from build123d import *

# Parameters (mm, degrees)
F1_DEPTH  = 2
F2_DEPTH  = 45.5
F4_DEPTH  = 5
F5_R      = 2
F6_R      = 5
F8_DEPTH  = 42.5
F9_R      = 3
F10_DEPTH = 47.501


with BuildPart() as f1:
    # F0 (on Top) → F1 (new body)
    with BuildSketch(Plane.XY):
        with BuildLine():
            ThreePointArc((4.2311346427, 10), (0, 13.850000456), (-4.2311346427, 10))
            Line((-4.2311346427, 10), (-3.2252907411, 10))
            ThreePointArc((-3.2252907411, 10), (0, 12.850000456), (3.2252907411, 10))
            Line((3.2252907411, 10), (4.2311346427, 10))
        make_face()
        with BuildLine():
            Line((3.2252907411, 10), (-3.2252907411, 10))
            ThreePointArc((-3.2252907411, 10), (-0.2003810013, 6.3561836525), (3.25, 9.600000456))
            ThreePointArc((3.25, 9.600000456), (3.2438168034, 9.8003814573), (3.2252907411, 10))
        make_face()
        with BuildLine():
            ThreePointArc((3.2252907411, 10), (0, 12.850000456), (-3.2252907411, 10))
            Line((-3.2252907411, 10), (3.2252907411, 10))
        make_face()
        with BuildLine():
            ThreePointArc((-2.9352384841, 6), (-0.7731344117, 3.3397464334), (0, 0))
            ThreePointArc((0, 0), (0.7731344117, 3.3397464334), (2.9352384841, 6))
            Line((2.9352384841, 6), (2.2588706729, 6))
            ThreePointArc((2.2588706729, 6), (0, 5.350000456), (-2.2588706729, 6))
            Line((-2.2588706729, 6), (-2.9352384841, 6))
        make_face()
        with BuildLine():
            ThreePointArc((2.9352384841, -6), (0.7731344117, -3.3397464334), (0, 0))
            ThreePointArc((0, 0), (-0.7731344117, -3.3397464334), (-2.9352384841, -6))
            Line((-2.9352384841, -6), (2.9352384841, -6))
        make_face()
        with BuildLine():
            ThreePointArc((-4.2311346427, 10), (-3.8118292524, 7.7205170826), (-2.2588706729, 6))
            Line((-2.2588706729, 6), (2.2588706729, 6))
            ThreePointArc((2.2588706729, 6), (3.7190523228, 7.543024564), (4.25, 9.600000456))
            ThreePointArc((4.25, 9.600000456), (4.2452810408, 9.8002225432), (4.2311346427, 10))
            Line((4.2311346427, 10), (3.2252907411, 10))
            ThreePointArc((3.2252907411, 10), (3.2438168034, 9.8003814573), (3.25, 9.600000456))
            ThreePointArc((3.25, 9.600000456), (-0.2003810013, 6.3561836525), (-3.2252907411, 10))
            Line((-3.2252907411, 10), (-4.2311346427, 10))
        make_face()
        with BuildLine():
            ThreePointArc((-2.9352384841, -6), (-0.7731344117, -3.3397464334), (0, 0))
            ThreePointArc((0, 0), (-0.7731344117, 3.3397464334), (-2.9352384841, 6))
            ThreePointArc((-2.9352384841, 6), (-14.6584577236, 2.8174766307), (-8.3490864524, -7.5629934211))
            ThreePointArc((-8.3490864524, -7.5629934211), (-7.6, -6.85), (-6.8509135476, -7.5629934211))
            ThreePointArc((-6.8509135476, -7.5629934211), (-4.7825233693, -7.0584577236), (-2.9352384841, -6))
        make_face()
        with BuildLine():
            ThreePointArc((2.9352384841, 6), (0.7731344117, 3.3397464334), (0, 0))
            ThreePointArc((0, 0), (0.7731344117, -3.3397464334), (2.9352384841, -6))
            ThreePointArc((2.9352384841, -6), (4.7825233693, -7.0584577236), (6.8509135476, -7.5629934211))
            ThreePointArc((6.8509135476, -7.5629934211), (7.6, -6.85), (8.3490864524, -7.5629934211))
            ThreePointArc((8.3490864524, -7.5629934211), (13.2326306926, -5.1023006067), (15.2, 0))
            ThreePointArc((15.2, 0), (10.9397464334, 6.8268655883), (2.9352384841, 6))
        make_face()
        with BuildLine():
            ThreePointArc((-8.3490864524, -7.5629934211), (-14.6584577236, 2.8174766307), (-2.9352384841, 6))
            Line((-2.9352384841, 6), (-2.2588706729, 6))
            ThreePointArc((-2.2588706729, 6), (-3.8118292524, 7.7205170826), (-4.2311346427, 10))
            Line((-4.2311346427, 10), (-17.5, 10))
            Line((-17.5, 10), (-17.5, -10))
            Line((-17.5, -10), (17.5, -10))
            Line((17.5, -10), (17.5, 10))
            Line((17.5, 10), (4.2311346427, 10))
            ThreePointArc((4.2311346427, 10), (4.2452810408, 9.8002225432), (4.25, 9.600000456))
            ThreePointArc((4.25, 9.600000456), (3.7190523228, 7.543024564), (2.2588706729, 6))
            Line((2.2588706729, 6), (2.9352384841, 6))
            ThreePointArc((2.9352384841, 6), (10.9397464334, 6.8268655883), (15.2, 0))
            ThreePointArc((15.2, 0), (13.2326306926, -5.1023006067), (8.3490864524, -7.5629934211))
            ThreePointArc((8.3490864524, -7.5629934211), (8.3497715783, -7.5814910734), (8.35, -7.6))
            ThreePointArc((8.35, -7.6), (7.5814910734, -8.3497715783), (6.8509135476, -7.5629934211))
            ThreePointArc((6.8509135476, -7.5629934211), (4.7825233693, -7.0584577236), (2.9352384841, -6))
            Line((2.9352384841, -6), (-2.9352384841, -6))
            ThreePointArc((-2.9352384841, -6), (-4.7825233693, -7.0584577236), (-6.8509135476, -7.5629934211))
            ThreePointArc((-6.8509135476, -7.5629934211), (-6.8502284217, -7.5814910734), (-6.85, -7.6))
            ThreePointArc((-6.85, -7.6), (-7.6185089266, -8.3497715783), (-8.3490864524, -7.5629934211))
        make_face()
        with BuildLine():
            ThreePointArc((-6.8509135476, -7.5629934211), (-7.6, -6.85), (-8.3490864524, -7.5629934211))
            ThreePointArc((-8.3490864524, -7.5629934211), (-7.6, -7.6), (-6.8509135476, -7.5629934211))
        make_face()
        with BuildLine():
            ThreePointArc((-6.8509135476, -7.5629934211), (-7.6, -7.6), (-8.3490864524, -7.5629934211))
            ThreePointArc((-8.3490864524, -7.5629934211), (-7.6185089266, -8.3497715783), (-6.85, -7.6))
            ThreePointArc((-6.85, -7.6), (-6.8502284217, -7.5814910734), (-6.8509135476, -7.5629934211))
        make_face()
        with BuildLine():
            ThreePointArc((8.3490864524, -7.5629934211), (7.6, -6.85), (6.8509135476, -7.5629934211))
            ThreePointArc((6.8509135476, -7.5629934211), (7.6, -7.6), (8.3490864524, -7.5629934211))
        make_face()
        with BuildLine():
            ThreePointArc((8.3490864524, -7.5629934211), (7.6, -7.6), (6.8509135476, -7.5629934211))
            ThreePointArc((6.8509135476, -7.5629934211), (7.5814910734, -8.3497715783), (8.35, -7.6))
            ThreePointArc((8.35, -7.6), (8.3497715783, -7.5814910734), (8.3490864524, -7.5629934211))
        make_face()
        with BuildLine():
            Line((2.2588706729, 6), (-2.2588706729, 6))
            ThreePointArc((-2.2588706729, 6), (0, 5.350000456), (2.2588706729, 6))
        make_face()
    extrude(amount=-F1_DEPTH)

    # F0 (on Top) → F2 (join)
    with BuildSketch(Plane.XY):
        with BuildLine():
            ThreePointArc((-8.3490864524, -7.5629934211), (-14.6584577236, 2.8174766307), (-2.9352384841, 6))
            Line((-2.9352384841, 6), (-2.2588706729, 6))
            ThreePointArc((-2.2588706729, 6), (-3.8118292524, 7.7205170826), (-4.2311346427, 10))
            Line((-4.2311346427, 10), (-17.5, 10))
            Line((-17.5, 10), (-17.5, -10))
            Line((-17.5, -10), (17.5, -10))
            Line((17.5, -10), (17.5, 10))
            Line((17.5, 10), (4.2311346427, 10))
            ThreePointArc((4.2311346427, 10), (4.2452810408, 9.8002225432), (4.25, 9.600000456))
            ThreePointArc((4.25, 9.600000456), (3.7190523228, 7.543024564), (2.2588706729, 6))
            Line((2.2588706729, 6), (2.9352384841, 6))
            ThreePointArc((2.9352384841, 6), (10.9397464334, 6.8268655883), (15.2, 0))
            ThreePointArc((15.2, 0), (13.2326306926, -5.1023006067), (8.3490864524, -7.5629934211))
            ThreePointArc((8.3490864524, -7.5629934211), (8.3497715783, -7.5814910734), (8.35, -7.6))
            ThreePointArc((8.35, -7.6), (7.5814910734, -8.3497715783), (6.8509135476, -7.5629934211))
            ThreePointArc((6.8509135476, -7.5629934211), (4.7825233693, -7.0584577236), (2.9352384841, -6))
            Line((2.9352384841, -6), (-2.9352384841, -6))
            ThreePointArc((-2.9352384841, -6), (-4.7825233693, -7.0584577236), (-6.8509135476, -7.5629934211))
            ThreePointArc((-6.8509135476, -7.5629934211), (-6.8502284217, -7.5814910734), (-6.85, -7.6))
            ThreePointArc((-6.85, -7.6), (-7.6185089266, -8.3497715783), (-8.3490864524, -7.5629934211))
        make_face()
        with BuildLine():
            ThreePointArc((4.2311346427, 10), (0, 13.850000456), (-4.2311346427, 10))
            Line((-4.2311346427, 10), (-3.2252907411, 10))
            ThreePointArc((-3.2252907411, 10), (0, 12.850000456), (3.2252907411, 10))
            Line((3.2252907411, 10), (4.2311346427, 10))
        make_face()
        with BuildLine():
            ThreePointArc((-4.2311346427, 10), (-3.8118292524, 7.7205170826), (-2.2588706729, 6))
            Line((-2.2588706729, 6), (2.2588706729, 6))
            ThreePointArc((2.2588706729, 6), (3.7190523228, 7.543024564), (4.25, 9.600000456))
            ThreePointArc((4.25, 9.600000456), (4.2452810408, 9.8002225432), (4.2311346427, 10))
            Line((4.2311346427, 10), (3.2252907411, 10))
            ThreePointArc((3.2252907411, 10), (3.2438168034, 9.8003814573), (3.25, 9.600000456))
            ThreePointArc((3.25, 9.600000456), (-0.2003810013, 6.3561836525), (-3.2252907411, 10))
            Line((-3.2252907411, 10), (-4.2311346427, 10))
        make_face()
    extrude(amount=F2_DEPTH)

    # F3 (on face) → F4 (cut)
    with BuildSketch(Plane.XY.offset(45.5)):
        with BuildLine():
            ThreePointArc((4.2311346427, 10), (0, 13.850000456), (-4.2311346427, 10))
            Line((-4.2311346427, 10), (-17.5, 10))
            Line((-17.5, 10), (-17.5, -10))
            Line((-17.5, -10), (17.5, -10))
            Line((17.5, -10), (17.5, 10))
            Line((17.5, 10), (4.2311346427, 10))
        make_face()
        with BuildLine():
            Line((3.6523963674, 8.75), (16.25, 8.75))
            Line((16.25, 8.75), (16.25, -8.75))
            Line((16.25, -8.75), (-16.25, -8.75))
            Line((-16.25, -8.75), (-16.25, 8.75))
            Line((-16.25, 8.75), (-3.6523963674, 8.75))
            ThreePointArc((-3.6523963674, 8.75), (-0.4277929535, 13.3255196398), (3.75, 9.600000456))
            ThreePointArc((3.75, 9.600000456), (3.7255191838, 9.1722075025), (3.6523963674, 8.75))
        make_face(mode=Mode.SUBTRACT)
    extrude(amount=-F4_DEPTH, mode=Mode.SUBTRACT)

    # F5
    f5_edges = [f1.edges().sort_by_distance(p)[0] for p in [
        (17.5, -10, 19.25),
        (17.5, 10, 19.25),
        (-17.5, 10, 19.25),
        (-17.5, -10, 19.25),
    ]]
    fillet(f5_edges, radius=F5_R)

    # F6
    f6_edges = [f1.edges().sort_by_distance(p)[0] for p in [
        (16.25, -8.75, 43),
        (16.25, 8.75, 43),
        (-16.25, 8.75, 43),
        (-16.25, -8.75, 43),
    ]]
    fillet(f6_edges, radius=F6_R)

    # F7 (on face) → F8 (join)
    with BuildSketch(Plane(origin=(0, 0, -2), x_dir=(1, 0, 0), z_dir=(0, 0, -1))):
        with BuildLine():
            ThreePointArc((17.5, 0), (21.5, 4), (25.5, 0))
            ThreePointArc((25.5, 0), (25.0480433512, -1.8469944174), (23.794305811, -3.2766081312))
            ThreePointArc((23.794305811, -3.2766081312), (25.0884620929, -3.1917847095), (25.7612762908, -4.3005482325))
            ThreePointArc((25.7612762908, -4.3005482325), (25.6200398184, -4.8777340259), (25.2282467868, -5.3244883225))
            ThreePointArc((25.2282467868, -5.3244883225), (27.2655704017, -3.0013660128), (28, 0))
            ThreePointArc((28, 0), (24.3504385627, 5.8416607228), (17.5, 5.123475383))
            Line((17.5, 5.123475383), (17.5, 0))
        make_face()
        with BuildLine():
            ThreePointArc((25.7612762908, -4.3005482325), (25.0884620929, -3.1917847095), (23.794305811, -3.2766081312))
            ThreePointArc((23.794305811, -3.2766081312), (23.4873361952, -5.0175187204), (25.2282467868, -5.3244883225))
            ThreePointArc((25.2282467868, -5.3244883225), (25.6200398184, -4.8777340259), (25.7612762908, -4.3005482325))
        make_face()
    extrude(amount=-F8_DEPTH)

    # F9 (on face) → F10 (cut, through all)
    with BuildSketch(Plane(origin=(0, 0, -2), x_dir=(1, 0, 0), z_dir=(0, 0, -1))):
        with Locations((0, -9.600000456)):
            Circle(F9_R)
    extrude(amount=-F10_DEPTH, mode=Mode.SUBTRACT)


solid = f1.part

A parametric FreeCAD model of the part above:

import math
import FreeCAD as App
import Part
import Sketcher
from FreeCAD import Vector


def edges_at(feature, points):
    """Names of the edges that pass closest to the given points."""
    edges = feature.Shape.Edges
    near = lambda p: min(range(len(edges)), key=lambda i: edges[i].distToShape(Part.Vertex(*p))[0])
    return sorted({f"Edge{near(p) + 1}" for p in points})

doc = App.newDocument("Part")
body = doc.addObject("PartDesign::Body", "Body")

sketch1 = body.newObject("Sketcher::SketchObject", "Sketch")
sketch1.AttachmentSupport = (doc.getObject("XY_Plane"), [""])
sketch1.MapMode = "FlatFace"
sketch1.addGeometry([
    Part.ArcOfCircle(Part.Circle(Vector(0, 9.6, 0), Vector(0, 0, 1), 4.2), math.radians(5), math.radians(175)),
    Part.LineSegment(Vector(-4.2, 10, 0), Vector(-17.5, 10, 0)),
    Part.LineSegment(Vector(-17.5, 10, 0), Vector(-17.5, -10, 0)),
    Part.LineSegment(Vector(-17.5, -10, 0), Vector(17.5, -10, 0)),
    Part.LineSegment(Vector(17.5, -10, 0), Vector(17.5, 10, 0)),
    Part.LineSegment(Vector(17.5, 10, 0), Vector(4.2, 10, 0)),
], False)
sketch1.addConstraint([
    Sketcher.Constraint("Coincident", 0, 2, 1, 1),
    Sketcher.Constraint("Coincident", 1, 2, 2, 1),
    Sketcher.Constraint("Coincident", 2, 2, 3, 1),
    Sketcher.Constraint("Coincident", 3, 2, 4, 1),
    Sketcher.Constraint("Coincident", 4, 2, 5, 1),
    Sketcher.Constraint("Coincident", 5, 2, 0, 1),
    Sketcher.Constraint("Horizontal", 1),
    Sketcher.Constraint("Vertical", 2),
    Sketcher.Constraint("Horizontal", 3),
    Sketcher.Constraint("Vertical", 4),
    Sketcher.Constraint("Horizontal", 5),
    Sketcher.Constraint("Symmetric", 1, 2, 3, 2, -1, 1),
    Sketcher.Constraint("Symmetric", 0, 2, 5, 2, -2),
    Sketcher.Constraint("DistanceX", 3, 1, 3, 2, 35.0),
    Sketcher.Constraint("DistanceY", 2, 2, 2, 1, 20.0),
    Sketcher.Constraint("Radius", 0, 4.25),
    Sketcher.Constraint("DistanceY", -1, 1, 0, 3, 9.6),
])
pad1 = body.newObject("PartDesign::Pad", "Pad")
pad1.Profile = sketch1
pad1.Length = 2
pad1.Reversed = True

sketch2 = body.newObject("Sketcher::SketchObject", "Sketch001")
sketch2.AttachmentSupport = (doc.getObject("XY_Plane"), [""])
sketch2.MapMode = "FlatFace"
sketch2.addGeometry([
    Part.LineSegment(Vector(-4.231, 10, 0), Vector(-17.5, 10, 0)),
    Part.LineSegment(Vector(-17.5, 10, 0), Vector(-17.5, -10, 0)),
    Part.LineSegment(Vector(-17.5, -10, 0), Vector(17.5, -10, 0)),
    Part.LineSegment(Vector(17.5, -10, 0), Vector(17.5, 10, 0)),
    Part.LineSegment(Vector(17.5, 10, 0), Vector(4.231, 10, 0)),
    Part.ArcOfCircle(Part.Circle(Vector(0, 9.6, 0), Vector(0, 0, 1), 4.25), math.radians(5), math.radians(175)),
    Part.ArcOfCircle(Part.Circle(Vector(-7.6, 0, 0), Vector(0, 0, 1), 7.6), math.radians(52), math.radians(264)),
    Part.LineSegment(Vector(-2.935, 6, 0), Vector(2.935, 6, 0)),
    Part.ArcOfCircle(Part.Circle(Vector(7.6, 0, 0), Vector(0, 0, 1), 7.6), math.radians(0), math.radians(128)),
    Part.ArcOfCircle(Part.Circle(Vector(7.6, 0, 0), Vector(0, 0, 1), 7.6), math.radians(-84), math.radians(0)),
    Part.ArcOfCircle(Part.Circle(Vector(7.6, -7.6, 0), Vector(0, 0, 1), 0.75), math.radians(0), math.radians(2.83)),
    Part.ArcOfCircle(Part.Circle(Vector(7.6, -7.6, 0), Vector(0, 0, 1), 0.75), math.radians(177), math.radians(360)),
    Part.ArcOfCircle(Part.Circle(Vector(7.6, 0, 0), Vector(0, 0, 1), 7.6), math.radians(-128), math.radians(-96)),
    Part.LineSegment(Vector(2.935, -6, 0), Vector(-2.935, -6, 0)),
    Part.ArcOfCircle(Part.Circle(Vector(-7.6, 0, 0), Vector(0, 0, 1), 7.6), math.radians(-84), math.radians(-52)),
    Part.ArcOfCircle(Part.Circle(Vector(-7.6, -7.6, 0), Vector(0, 0, 1), 0.75), math.radians(0), math.radians(2.83)),
    Part.ArcOfCircle(Part.Circle(Vector(-7.6, -7.6, 0), Vector(0, 0, 1), 0.75), math.radians(177), math.radians(360)),
    Part.ArcOfCircle(Part.Circle(Vector(0, 9.6, 0), Vector(0, 0, 1), 3.25), math.radians(0), math.radians(7.07)),
    Part.ArcOfCircle(Part.Circle(Vector(0, 9.6, 0), Vector(0, 0, 1), 3.25), math.radians(173), math.radians(360)),
    Part.ArcOfCircle(Part.Circle(Vector(0, 9.6, 0), Vector(0, 0, 1), 3.25), math.radians(7), math.radians(173)),
], False)
sketch2.addConstraint([
    Sketcher.Constraint("Coincident", 0, 2, 1, 1),
    Sketcher.Constraint("Coincident", 1, 2, 2, 1),
    Sketcher.Constraint("Coincident", 2, 2, 3, 1),
    Sketcher.Constraint("Coincident", 3, 2, 4, 1),
    Sketcher.Constraint("Coincident", 4, 2, 5, 1),
    Sketcher.Constraint("Coincident", 5, 2, 0, 1),
    Sketcher.Constraint("Coincident", 6, 1, 7, 1),
    Sketcher.Constraint("Coincident", 7, 2, 8, 2),
    Sketcher.Constraint("Tangent", 8, 1, 9, 2),
    Sketcher.Constraint("Coincident", 9, 1, 10, 2),
    Sketcher.Constraint("Tangent", 10, 1, 11, 2),
    Sketcher.Constraint("Coincident", 11, 1, 12, 2),
    Sketcher.Constraint("Coincident", 12, 1, 13, 1),
    Sketcher.Constraint("Coincident", 13, 2, 14, 2),
    Sketcher.Constraint("Coincident", 14, 1, 15, 2),
    Sketcher.Constraint("Tangent", 15, 1, 16, 2),
    Sketcher.Constraint("Coincident", 16, 1, 6, 2),
    Sketcher.Constraint("Tangent", 17, 1, 18, 2),
    Sketcher.Constraint("Tangent", 18, 1, 19, 2),
    Sketcher.Constraint("Tangent", 19, 1, 17, 2),
    Sketcher.Constraint("Horizontal", 0),
    Sketcher.Constraint("Vertical", 1),
    Sketcher.Constraint("Horizontal", 2),
    Sketcher.Constraint("Vertical", 3),
    Sketcher.Constraint("Horizontal", 4),
    Sketcher.Constraint("Horizontal", 7),
    Sketcher.Constraint("Horizontal", 13),
    Sketcher.Constraint("Coincident", 12, 3, 8, 3),
    Sketcher.Constraint("Coincident", 14, 3, 6, 3),
    Sketcher.Constraint("Coincident", 17, 3, 5, 3),
    Sketcher.Constraint("Equal", 6, 8),
    Sketcher.Constraint("Equal", 8, 9),
    Sketcher.Constraint("Equal", 10, 11),
    Sketcher.Constraint("Equal", 9, 12),
    Sketcher.Constraint("Equal", 12, 14),
    Sketcher.Constraint("Equal", 11, 15),
    Sketcher.Constraint("Equal", 15, 16),
    Sketcher.Constraint("Symmetric", 6, 3, 8, 3, -1, 1),
    Sketcher.Constraint("Symmetric", 0, 2, 2, 2, -1, 1),
    Sketcher.Constraint("Symmetric", 10, 3, 15, 3, -2),
    Sketcher.Constraint("Symmetric", 4, 2, 5, 2, -2),
    Sketcher.Constraint("Symmetric", 7, 2, 12, 1, -1),
    Sketcher.Constraint("PointOnObject", 8, 1, -1),
    Sketcher.Constraint("Horizontal", 16, 3, 10, 1),
    Sketcher.Constraint("Horizontal", 9, 1, 11, 1),
    Sketcher.Constraint("Horizontal", 10, 1, 15, 1),
    Sketcher.Constraint("Horizontal", 19, 3, 17, 1),
    Sketcher.Constraint("Horizontal", 5, 2, 18, 1),
    Sketcher.Constraint("Horizontal", 18, 1, 19, 1),
    Sketcher.Constraint("Radius", 6, 7.6),
    Sketcher.Constraint("DistanceX", 2, 1, 2, 2, 35.0),
    Sketcher.Constraint("DistanceY", 1, 2, 1, 1, 20.0),
    Sketcher.Constraint("Radius", 5, 4.25),
    Sketcher.Constraint("Radius", 10, 0.75),
    Sketcher.Constraint("Radius", 17, 3.25),
    Sketcher.Constraint("DistanceY", -1, 1, 6, 1, 6.0),
    Sketcher.Constraint("DistanceY", -1, 1, 5, 3, 9.6),
    Sketcher.Constraint("DistanceX", 6, 3, -1, 1, 7.6),
    Sketcher.Constraint("DistanceY", 10, 3, -1, 1, 7.6),
])
pad2 = body.newObject("PartDesign::Pad", "Pad001")
pad2.Profile = sketch2
pad2.Length = 45.5

sketch3 = body.newObject("Sketcher::SketchObject", "Sketch002")
sketch3.AttachmentSupport = (doc.getObject("XY_Plane"), [""])
sketch3.MapMode = "FlatFace"
sketch3.AttachmentOffset = App.Placement(Vector(0, 0, 45.5), App.Rotation())
sketch3.addGeometry([
    Part.ArcOfCircle(Part.Circle(Vector(0, 9.6, 0), Vector(0, 0, 1), 4.2), math.radians(5), math.radians(175)),
    Part.LineSegment(Vector(-4.2, 10, 0), Vector(-17.5, 10, 0)),
    Part.LineSegment(Vector(-17.5, 10, 0), Vector(-17.5, -10, 0)),
    Part.LineSegment(Vector(-17.5, -10, 0), Vector(17.5, -10, 0)),
    Part.LineSegment(Vector(17.5, -10, 0), Vector(17.5, 10, 0)),
    Part.LineSegment(Vector(17.5, 10, 0), Vector(4.2, 10, 0)),
    Part.ArcOfCircle(Part.Circle(Vector(0, 9.6, 0), Vector(0, 0, 1), 3.7), math.radians(-13.1), math.radians(0)),
    Part.LineSegment(Vector(3.7, 8.8, 0), Vector(16.2, 8.8, 0)),
    Part.LineSegment(Vector(16.2, 8.8, 0), Vector(16.2, -8.8, 0)),
    Part.LineSegment(Vector(16.2, -8.8, 0), Vector(-16.2, -8.8, 0)),
    Part.LineSegment(Vector(-16.2, -8.8, 0), Vector(-16.2, 8.8, 0)),
    Part.LineSegment(Vector(-16.2, 8.8, 0), Vector(-3.7, 8.8, 0)),
    Part.ArcOfCircle(Part.Circle(Vector(0, 9.6, 0), Vector(0, 0, 1), 3.8), math.radians(0), math.radians(193)),
], False)
sketch3.addConstraint([
    Sketcher.Constraint("Coincident", 0, 2, 1, 1),
    Sketcher.Constraint("Coincident", 1, 2, 2, 1),
    Sketcher.Constraint("Coincident", 2, 2, 3, 1),
    Sketcher.Constraint("Coincident", 3, 2, 4, 1),
    Sketcher.Constraint("Coincident", 4, 2, 5, 1),
    Sketcher.Constraint("Coincident", 5, 2, 0, 1),
    Sketcher.Constraint("Coincident", 6, 1, 7, 1),
    Sketcher.Constraint("Coincident", 7, 2, 8, 1),
    Sketcher.Constraint("Coincident", 8, 2, 9, 1),
    Sketcher.Constraint("Coincident", 9, 2, 10, 1),
    Sketcher.Constraint("Coincident", 10, 2, 11, 1),
    Sketcher.Constraint("Coincident", 11, 2, 12, 2),
    Sketcher.Constraint("Tangent", 12, 1, 6, 2),
    Sketcher.Constraint("Horizontal", 1),
    Sketcher.Constraint("Vertical", 2),
    Sketcher.Constraint("Horizontal", 3),
    Sketcher.Constraint("Vertical", 4),
    Sketcher.Constraint("Horizontal", 5),
    Sketcher.Constraint("Horizontal", 7),
    Sketcher.Constraint("Vertical", 8),
    Sketcher.Constraint("Horizontal", 9),
    Sketcher.Constraint("Vertical", 10),
    Sketcher.Constraint("Horizontal", 11),
    Sketcher.Constraint("Coincident", 6, 3, 0, 3),
    Sketcher.Constraint("Equal", 6, 12),
    Sketcher.Constraint("Symmetric", 1, 2, 3, 2, -1, 1),
    Sketcher.Constraint("Symmetric", 7, 2, 9, 2, -1, 1),
    Sketcher.Constraint("Symmetric", 0, 2, 5, 2, -2),
    Sketcher.Constraint("Horizontal", 7, 2, 10, 2),
    Sketcher.Constraint("Horizontal", 6, 3, 12, 1),
    Sketcher.Constraint("DistanceX", 3, 1, 3, 2, 35.0),
    Sketcher.Constraint("DistanceY", 2, 2, 2, 1, 20.0),
    Sketcher.Constraint("Radius", 0, 4.25),
    Sketcher.Constraint("Radius", 6, 3.75),
    Sketcher.Constraint("DistanceX", 9, 2, 9, 1, 32.5),
    Sketcher.Constraint("DistanceY", 8, 2, 8, 1, 17.5),
    Sketcher.Constraint("DistanceY", -1, 1, 0, 3, 9.6),
])
pocket1 = body.newObject("PartDesign::Pocket", "Pocket")
pocket1.Profile = sketch3
pocket1.Length = 5
doc.recompute()

fillet = body.newObject("PartDesign::Fillet", "Fillet")
fillet.Base = (pocket1, edges_at(pocket1, [
    (17.5, -10, 19.25),
    (17.5, 10, 19.25),
    (-17.5, 10, 19.25),
    (-17.5, -10, 19.25),
]))
fillet.Radius = 2
doc.recompute()

fillet2 = body.newObject("PartDesign::Fillet", "Fillet001")
fillet2.Base = (fillet, edges_at(fillet, [
    (16.25, -8.75, 43),
    (16.25, 8.75, 43),
    (-16.25, 8.75, 43),
    (-16.25, -8.75, 43),
]))
fillet2.Radius = 5

sketch4 = body.newObject("Sketcher::SketchObject", "Sketch003")
sketch4.AttachmentSupport = (doc.getObject("XY_Plane"), [""])
sketch4.MapMode = "FlatFace"
sketch4.AttachmentOffset = App.Placement(Vector(0, 0, -2), App.Rotation())
sketch4.addGeometry([
    Part.ArcOfCircle(Part.Circle(Vector(21.5, 0, 0), Vector(0, 0, 1), 4), math.radians(180), math.radians(360)),
    Part.ArcOfCircle(Part.Circle(Vector(21.5, 0, 0), Vector(0, 0, 1), 4), math.radians(0), math.radians(55)),
    Part.ArcOfCircle(Part.Circle(Vector(24.5, 4.3, 0), Vector(0, 0, 1), 1.2), math.radians(55), math.radians(235)),
    Part.ArcOfCircle(Part.Circle(Vector(21.5, 0, 0), Vector(0, 0, 1), 6.5), math.radians(0), math.radians(55)),
    Part.ArcOfCircle(Part.Circle(Vector(21.5, 0, 0), Vector(0, 0, 1), 6.5), math.radians(-128), math.radians(0)),
    Part.LineSegment(Vector(17.5, -5.1, 0), Vector(17.5, 0, 0)),
], False)
sketch4.addConstraint([
    Sketcher.Constraint("Tangent", 0, 2, 1, 1),
    Sketcher.Constraint("Tangent", 1, 2, 2, 2),
    Sketcher.Constraint("Tangent", 2, 1, 3, 2),
    Sketcher.Constraint("Tangent", 3, 1, 4, 2),
    Sketcher.Constraint("Coincident", 4, 1, 5, 1),
    Sketcher.Constraint("Tangent", 5, 2, 0, 1),
    Sketcher.Constraint("Vertical", 5),
    Sketcher.Constraint("Coincident", 3, 3, 0, 3),
    Sketcher.Constraint("Equal", 0, 1),
    Sketcher.Constraint("Equal", 3, 4),
    Sketcher.Constraint("PointOnObject", 0, 3, -1),
    Sketcher.Constraint("PointOnObject", 0, 2, -1),
    Sketcher.Constraint("PointOnObject", 3, 1, -1),
    Sketcher.Constraint("Radius", 0, 4.0),
    Sketcher.Constraint("Radius", 3, 6.5),
    Sketcher.Constraint("DistanceX", -1, 1, 3, 1, 28.0),
    Sketcher.Constraint("DistanceY", -1, 1, 2, 3, 4.300548),
])
pad3 = body.newObject("PartDesign::Pad", "Pad002")
pad3.Profile = sketch4
pad3.Length = 42.5

sketch5 = body.newObject("Sketcher::SketchObject", "Sketch004")
sketch5.AttachmentSupport = (doc.getObject("XY_Plane"), [""])
sketch5.MapMode = "FlatFace"
sketch5.AttachmentOffset = App.Placement(Vector(0, 0, -2), App.Rotation())
sketch5.addGeometry(Part.Circle(Vector(0, 9.6, 0), Vector(0, 0, 1), 3), False)
sketch5.addConstraint([
    Sketcher.Constraint("PointOnObject", 0, 3, -2),
    Sketcher.Constraint("Diameter", 0, 6.0),
    Sketcher.Constraint("DistanceY", -1, 1, 0, 3, 9.6),
])
pocket2 = body.newObject("PartDesign::Pocket", "Pocket001")
pocket2.Profile = sketch5
pocket2.Type = "ThroughAll"
pocket2.Reversed = True

doc.recompute()
